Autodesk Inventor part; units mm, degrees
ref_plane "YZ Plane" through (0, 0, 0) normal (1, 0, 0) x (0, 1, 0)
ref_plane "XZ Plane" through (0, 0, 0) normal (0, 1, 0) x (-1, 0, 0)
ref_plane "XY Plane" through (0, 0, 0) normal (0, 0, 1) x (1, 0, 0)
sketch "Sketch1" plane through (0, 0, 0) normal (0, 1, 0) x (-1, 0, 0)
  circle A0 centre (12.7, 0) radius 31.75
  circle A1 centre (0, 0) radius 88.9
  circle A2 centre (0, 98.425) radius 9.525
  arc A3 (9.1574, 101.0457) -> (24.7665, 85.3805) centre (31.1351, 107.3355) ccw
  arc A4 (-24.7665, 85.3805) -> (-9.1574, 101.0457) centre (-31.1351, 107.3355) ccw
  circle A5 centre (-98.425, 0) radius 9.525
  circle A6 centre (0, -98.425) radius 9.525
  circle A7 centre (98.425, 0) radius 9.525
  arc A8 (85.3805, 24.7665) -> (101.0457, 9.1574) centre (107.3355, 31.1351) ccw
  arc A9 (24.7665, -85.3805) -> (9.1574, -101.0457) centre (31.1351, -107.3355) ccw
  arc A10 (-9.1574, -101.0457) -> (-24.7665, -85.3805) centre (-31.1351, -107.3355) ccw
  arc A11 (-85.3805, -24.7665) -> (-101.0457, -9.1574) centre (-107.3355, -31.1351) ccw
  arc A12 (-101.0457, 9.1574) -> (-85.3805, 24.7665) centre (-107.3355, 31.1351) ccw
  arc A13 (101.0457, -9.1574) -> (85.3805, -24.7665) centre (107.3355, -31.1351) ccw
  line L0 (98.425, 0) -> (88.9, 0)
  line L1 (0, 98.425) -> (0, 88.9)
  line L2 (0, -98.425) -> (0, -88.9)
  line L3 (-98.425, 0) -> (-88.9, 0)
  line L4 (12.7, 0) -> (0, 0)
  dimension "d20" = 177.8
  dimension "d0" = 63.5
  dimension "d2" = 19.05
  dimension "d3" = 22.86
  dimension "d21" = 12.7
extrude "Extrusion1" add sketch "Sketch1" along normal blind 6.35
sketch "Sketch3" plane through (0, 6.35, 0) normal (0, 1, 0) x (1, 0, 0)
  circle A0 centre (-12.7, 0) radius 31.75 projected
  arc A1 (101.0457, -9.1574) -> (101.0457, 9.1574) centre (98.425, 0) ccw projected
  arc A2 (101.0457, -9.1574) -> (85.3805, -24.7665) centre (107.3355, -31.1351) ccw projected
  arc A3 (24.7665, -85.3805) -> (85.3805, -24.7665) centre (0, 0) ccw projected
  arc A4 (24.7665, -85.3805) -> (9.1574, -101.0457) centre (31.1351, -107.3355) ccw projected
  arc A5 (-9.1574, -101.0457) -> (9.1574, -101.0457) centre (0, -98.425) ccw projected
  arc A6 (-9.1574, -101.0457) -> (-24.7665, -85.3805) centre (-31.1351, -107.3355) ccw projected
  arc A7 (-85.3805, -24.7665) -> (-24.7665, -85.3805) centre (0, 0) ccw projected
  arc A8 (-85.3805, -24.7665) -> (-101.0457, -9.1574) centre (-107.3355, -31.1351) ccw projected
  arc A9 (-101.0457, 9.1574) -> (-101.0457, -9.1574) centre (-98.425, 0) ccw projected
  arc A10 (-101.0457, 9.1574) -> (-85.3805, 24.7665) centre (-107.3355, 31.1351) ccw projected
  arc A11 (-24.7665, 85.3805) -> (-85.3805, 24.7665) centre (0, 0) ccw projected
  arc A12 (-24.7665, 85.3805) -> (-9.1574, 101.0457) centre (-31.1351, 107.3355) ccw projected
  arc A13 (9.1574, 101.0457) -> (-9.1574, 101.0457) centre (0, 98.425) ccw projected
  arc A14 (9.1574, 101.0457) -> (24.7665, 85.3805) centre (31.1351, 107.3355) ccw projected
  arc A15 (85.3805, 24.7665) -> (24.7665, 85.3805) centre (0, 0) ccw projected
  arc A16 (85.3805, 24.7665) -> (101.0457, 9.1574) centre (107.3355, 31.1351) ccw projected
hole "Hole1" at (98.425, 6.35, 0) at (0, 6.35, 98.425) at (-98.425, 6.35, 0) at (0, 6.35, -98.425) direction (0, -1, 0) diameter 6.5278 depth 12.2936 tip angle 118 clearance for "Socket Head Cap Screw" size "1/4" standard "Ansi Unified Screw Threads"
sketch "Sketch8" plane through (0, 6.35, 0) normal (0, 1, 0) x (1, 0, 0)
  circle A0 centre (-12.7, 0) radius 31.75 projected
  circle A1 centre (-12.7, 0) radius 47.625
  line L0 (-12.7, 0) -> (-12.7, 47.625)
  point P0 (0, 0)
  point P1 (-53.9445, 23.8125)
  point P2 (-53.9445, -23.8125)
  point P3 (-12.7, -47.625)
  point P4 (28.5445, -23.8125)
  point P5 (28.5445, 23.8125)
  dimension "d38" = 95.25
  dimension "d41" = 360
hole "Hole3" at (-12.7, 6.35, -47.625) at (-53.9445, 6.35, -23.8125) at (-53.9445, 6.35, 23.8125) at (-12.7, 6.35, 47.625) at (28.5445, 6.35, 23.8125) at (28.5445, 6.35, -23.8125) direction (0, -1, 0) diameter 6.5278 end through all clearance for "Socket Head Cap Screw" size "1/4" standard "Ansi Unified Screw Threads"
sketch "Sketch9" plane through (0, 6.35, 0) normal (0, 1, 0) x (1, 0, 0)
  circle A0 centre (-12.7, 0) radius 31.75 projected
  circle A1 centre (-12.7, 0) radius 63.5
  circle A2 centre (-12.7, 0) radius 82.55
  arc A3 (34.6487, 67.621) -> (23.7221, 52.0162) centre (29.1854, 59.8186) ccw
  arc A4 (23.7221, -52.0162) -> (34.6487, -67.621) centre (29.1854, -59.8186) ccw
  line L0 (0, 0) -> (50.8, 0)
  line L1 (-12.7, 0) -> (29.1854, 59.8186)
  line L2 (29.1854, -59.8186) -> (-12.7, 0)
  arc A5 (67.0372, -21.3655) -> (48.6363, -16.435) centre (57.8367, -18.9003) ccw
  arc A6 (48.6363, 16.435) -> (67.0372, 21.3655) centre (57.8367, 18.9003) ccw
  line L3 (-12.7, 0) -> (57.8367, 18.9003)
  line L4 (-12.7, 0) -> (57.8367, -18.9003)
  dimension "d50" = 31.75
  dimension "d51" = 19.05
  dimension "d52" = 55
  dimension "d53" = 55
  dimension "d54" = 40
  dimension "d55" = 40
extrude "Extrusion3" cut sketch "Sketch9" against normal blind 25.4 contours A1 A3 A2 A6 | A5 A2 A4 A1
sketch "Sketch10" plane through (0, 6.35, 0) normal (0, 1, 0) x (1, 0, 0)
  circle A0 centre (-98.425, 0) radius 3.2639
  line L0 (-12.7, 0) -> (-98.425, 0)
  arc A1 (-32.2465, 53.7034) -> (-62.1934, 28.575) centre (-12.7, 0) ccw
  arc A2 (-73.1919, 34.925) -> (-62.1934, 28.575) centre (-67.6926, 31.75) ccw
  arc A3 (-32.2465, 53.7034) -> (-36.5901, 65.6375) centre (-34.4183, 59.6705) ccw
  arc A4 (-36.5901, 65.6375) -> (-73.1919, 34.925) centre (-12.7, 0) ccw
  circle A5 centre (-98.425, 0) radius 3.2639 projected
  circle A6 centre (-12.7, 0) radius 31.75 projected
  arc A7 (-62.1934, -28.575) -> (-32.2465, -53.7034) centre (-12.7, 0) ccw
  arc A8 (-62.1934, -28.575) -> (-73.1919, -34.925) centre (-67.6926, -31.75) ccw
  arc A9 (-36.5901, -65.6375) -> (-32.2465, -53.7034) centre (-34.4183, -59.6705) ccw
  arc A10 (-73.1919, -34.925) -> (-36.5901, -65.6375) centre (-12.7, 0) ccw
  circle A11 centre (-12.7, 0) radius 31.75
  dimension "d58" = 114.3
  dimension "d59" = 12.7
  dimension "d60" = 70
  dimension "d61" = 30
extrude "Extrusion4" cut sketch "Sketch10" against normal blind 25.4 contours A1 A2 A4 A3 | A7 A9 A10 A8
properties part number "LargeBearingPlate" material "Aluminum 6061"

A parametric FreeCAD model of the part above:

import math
import FreeCAD as App
import Part
import Sketcher
Q = App.Units.Quantity

doc = App.newDocument("Part")
body = doc.addObject("PartDesign::Body", "Body")

sketch1 = body.newObject("Sketcher::SketchObject", "Sketch")
sketch1.AttachmentSupport = (doc.getObject("XZ_Plane"), [""])
sketch1.MapMode = "FlatFace"
sketch1.addGeometry([
    Part.ArcOfCircle(Part.Circle(App.Vector(0, 0, 0), App.Vector(0, 0, 1), 89), math.radians(-164), math.radians(-106)),
    Part.ArcOfCircle(Part.Circle(App.Vector(-107, -31, 0), App.Vector(0, 0, 1), 23), math.radians(16), math.radians(74)),
    Part.ArcOfCircle(Part.Circle(App.Vector(-98, 0, 0), App.Vector(0, 0, 1), 10), math.radians(106), math.radians(254)),
    Part.ArcOfCircle(Part.Circle(App.Vector(-107, 31, 0), App.Vector(0, 0, 1), 23), math.radians(-74), math.radians(-16)),
    Part.ArcOfCircle(Part.Circle(App.Vector(0, 0, 0), App.Vector(0, 0, 1), 89), math.radians(106), math.radians(164)),
    Part.ArcOfCircle(Part.Circle(App.Vector(-31, 107, 0), App.Vector(0, 0, 1), 23), math.radians(-74), math.radians(-16)),
    Part.ArcOfCircle(Part.Circle(App.Vector(0, 98, 0), App.Vector(0, 0, 1), 10), math.radians(16), math.radians(164)),
    Part.ArcOfCircle(Part.Circle(App.Vector(31, 107, 0), App.Vector(0, 0, 1), 23), math.radians(-164), math.radians(-106)),
    Part.ArcOfCircle(Part.Circle(App.Vector(0, 0, 0), App.Vector(0, 0, 1), 89), math.radians(16), math.radians(74)),
    Part.ArcOfCircle(Part.Circle(App.Vector(107, 31, 0), App.Vector(0, 0, 1), 23), math.radians(-164), math.radians(-106)),
    Part.ArcOfCircle(Part.Circle(App.Vector(98, 0, 0), App.Vector(0, 0, 1), 10), math.radians(-74), math.radians(74)),
    Part.ArcOfCircle(Part.Circle(App.Vector(107, -31, 0), App.Vector(0, 0, 1), 23), math.radians(106), math.radians(164)),
    Part.ArcOfCircle(Part.Circle(App.Vector(0, 0, 0), App.Vector(0, 0, 1), 89), math.radians(-74), math.radians(-16)),
    Part.ArcOfCircle(Part.Circle(App.Vector(31, -107, 0), App.Vector(0, 0, 1), 23), math.radians(106), math.radians(164)),
    Part.ArcOfCircle(Part.Circle(App.Vector(0, -98, 0), App.Vector(0, 0, 1), 10), math.radians(-164), math.radians(-16)),
    Part.ArcOfCircle(Part.Circle(App.Vector(-31, -107, 0), App.Vector(0, 0, 1), 23), math.radians(16), math.radians(74)),
    Part.Circle(App.Vector(-13, 0, 0), App.Vector(0, 0, 1), 32),
], False)
sketch1.addConstraint([
    Sketcher.Constraint("Tangent", 0, 1, 1, 1),
    Sketcher.Constraint("Tangent", 1, 2, 2, 2),
    Sketcher.Constraint("Tangent", 2, 1, 3, 1),
    Sketcher.Constraint("Tangent", 3, 2, 4, 2),
    Sketcher.Constraint("Tangent", 4, 1, 5, 1),
    Sketcher.Constraint("Tangent", 5, 2, 6, 2),
    Sketcher.Constraint("Tangent", 6, 1, 7, 1),
    Sketcher.Constraint("Tangent", 7, 2, 8, 2),
    Sketcher.Constraint("Tangent", 8, 1, 9, 1),
    Sketcher.Constraint("Tangent", 9, 2, 10, 2),
    Sketcher.Constraint("Tangent", 10, 1, 11, 1),
    Sketcher.Constraint("Tangent", 11, 2, 12, 2),
    Sketcher.Constraint("Tangent", 12, 1, 13, 1),
    Sketcher.Constraint("Tangent", 13, 2, 14, 2),
    Sketcher.Constraint("Tangent", 14, 1, 15, 1),
    Sketcher.Constraint("Tangent", 15, 2, 0, 2),
    Sketcher.Constraint("Coincident", 0, 3, -1, 1),
    Sketcher.Constraint("Coincident", 4, 3, -1, 1),
    Sketcher.Constraint("Coincident", 8, 3, -1, 1),
    Sketcher.Constraint("Coincident", 12, 3, -1, 1),
    Sketcher.Constraint("Equal", 1, 3),
    Sketcher.Constraint("Equal", 0, 4),
    Sketcher.Constraint("Equal", 3, 5),
    Sketcher.Constraint("Equal", 2, 6),
    Sketcher.Constraint("Equal", 5, 7),
    Sketcher.Constraint("Equal", 4, 8),
    Sketcher.Constraint("Equal", 7, 9),
    Sketcher.Constraint("Equal", 6, 10),
    Sketcher.Constraint("Equal", 9, 11),
    Sketcher.Constraint("Equal", 8, 12),
    Sketcher.Constraint("Equal", 11, 13),
    Sketcher.Constraint("Equal", 10, 14),
    Sketcher.Constraint("Equal", 13, 15),
    Sketcher.Constraint("Symmetric", 2, 3, 10, 3, -1, 1),
    Sketcher.Constraint("Symmetric", 6, 3, 14, 3, -1, 1),
    Sketcher.Constraint("PointOnObject", 2, 3, -1),
    Sketcher.Constraint("PointOnObject", 6, 3, -2),
    Sketcher.Constraint("PointOnObject", 16, 3, -1),
    Sketcher.Constraint("Diameter", 16, Q("2.5 in")),
    Sketcher.Constraint("Radius", 0, Q("3.5 in")),
    Sketcher.Constraint("Radius", 1, Q("0.9 in")),
    Sketcher.Constraint("Radius", 2, Q("0.375 in")),
    Sketcher.Constraint("DistanceX", 16, 3, -1, 1, Q("0.5 in")),
    Sketcher.Constraint("DistanceX", 2, 3, -1, 1, Q("3.875 in")),
    Sketcher.Constraint("DistanceY", -1, 1, 6, 3, Q("3.875 in")),
])
pad1 = body.newObject("PartDesign::Pad", "Pad")
pad1.Profile = sketch1
pad1.Length = Q("0.25 in")
pad1.Reversed = True

sketch2 = body.newObject("Sketcher::SketchObject", "Sketch001")
sketch2.AttachmentSupport = (doc.getObject("XZ_Plane"), [""])
sketch2.MapMode = "FlatFace"
sketch2.AttachmentOffset = App.Placement(App.Vector(0, 0, -0.25 * 25.4), App.Rotation())
sketch2.addGeometry([
    Part.Circle(App.Vector(98.4, 0, 0), App.Vector(0, 0, 1), 3.3),
    Part.Circle(App.Vector(0, 98.4, 0), App.Vector(0, 0, 1), 3.3),
    Part.Circle(App.Vector(-98.4, 0, 0), App.Vector(0, 0, 1), 3.3),
    Part.Circle(App.Vector(0, -98.4, 0), App.Vector(0, 0, 1), 3.3),
], False)
sketch2.addConstraint([
    Sketcher.Constraint("Equal", 0, 1),
    Sketcher.Constraint("Equal", 1, 2),
    Sketcher.Constraint("Equal", 2, 3),
    Sketcher.Constraint("Symmetric", 0, 3, 2, 3, -1, 1),
    Sketcher.Constraint("Symmetric", 1, 3, 3, 3, -1, 1),
    Sketcher.Constraint("PointOnObject", 0, 3, -1),
    Sketcher.Constraint("PointOnObject", 1, 3, -2),
    Sketcher.Constraint("Diameter", 0, Q("0.257 in")),
    Sketcher.Constraint("DistanceX", 2, 3, 0, 3, Q("7.75 in")),
    Sketcher.Constraint("DistanceY", 3, 3, 1, 3, Q("7.75 in")),
])
doc.recompute()
hole = body.newObject("PartDesign::Hole", "Hole")
hole.Profile = sketch2
hole.ThreadType = "None"
hole.Diameter = Q("0.257 in")
hole.DepthType = "Dimension"
hole.Depth = Q("0.484 in")
hole.DrillPoint = "Angled"
hole.DrillPointAngle = 118
hole.Reversed = True

sketch3 = body.newObject("Sketcher::SketchObject", "Sketch002")
sketch3.AttachmentSupport = (doc.getObject("XZ_Plane"), [""])
sketch3.MapMode = "FlatFace"
sketch3.AttachmentOffset = App.Placement(App.Vector(0, 0, -0.25 * 25.4), App.Rotation())
sketch3.addGeometry([
    Part.Circle(App.Vector(-12.7, -47.6, 0), App.Vector(0, 0, 1), 3.3),
    Part.Circle(App.Vector(-53.9, -23.8, 0), App.Vector(0, 0, 1), 3.3),
    Part.Circle(App.Vector(-53.9, 23.8, 0), App.Vector(0, 0, 1), 3.3),
    Part.Circle(App.Vector(-12.7, 47.6, 0), App.Vector(0, 0, 1), 3.3),
    Part.Circle(App.Vector(28.5, 23.8, 0), App.Vector(0, 0, 1), 3.3),
    Part.Circle(App.Vector(28.5, -23.8, 0), App.Vector(0, 0, 1), 3.3),
], False)
sketch3.addConstraint([
    Sketcher.Constraint("Equal", 0, 1),
    Sketcher.Constraint("Equal", 1, 2),
    Sketcher.Constraint("Equal", 2, 3),
    Sketcher.Constraint("Equal", 3, 4),
    Sketcher.Constraint("Equal", 4, 5),
    Sketcher.Constraint("Symmetric", 1, 3, 2, 3, -1),
    Sketcher.Constraint("Symmetric", 0, 3, 3, 3, -1),
    Sketcher.Constraint("Symmetric", 4, 3, 5, 3, -1),
    Sketcher.Constraint("Horizontal", 2, 3, 4, 3),
    Sketcher.Constraint("Diameter", 0, Q("0.257 in")),
    Sketcher.Constraint("DistanceX", 0, 3, -1, 1, Q("0.5 in")),
    Sketcher.Constraint("DistanceY", 0, 3, 3, 3, Q("3.75 in")),
    Sketcher.Constraint("DistanceY", 1, 3, -1, 1, Q("0.9375 in")),
    Sketcher.Constraint("DistanceX", 1, 3, -1, 1, Q("2.1238 in")),
    Sketcher.Constraint("DistanceX", -1, 1, 4, 3, Q("1.1238 in")),
])
doc.recompute()
hole2 = body.newObject("PartDesign::Hole", "Hole001")
hole2.Profile = sketch3
hole2.ThreadType = "None"
hole2.Diameter = Q("0.257 in")
hole2.DepthType = "ThroughAll"
hole2.Reversed = True

sketch4 = body.newObject("Sketcher::SketchObject", "Sketch003")
sketch4.AttachmentSupport = (doc.getObject("XZ_Plane"), [""])
sketch4.MapMode = "FlatFace"
sketch4.AttachmentOffset = App.Placement(App.Vector(0, 0, -0.25 * 25.4), App.Rotation())
sketch4.addGeometry([
    Part.ArcOfCircle(Part.Circle(App.Vector(-13, 0, 0), App.Vector(0, 0, 1), 64), math.radians(-55), math.radians(-15)),
    Part.ArcOfCircle(Part.Circle(App.Vector(58, -19, 0), App.Vector(0, 0, 1), 10), math.radians(-15), math.radians(165)),
    Part.ArcOfCircle(Part.Circle(App.Vector(-13, 0, 0), App.Vector(0, 0, 1), 83), math.radians(-55), math.radians(-15)),
    Part.ArcOfCircle(Part.Circle(App.Vector(29, -60, 0), App.Vector(0, 0, 1), 10), math.radians(125), math.radians(305)),
    Part.ArcOfCircle(Part.Circle(App.Vector(58, 19, 0), App.Vector(0, 0, 1), 10), math.radians(-165), math.radians(15)),
    Part.ArcOfCircle(Part.Circle(App.Vector(-13, 0, 0), App.Vector(0, 0, 1), 64), math.radians(15), math.radians(55)),
    Part.ArcOfCircle(Part.Circle(App.Vector(29, 60, 0), App.Vector(0, 0, 1), 10), math.radians(55), math.radians(235)),
    Part.ArcOfCircle(Part.Circle(App.Vector(-13, 0, 0), App.Vector(0, 0, 1), 83), math.radians(15), math.radians(55)),
], False)
sketch4.addConstraint([
    Sketcher.Constraint("Tangent", 0, 2, 1, 2),
    Sketcher.Constraint("Tangent", 1, 1, 2, 2),
    Sketcher.Constraint("Tangent", 2, 1, 3, 2),
    Sketcher.Constraint("Tangent", 3, 1, 0, 1),
    Sketcher.Constraint("Tangent", 4, 1, 5, 1),
    Sketcher.Constraint("Tangent", 5, 2, 6, 2),
    Sketcher.Constraint("Tangent", 6, 1, 7, 2),
    Sketcher.Constraint("Tangent", 7, 1, 4, 2),
    Sketcher.Constraint("Coincident", 2, 3, 0, 3),
    Sketcher.Constraint("Coincident", 5, 3, 0, 3),
    Sketcher.Constraint("Coincident", 7, 3, 0, 3),
    Sketcher.Constraint("Equal", 3, 4),
    Sketcher.Constraint("Equal", 0, 5),
    Sketcher.Constraint("Symmetric", 1, 3, 4, 3, -1),
    Sketcher.Constraint("Vertical", 3, 3, 6, 3),
    Sketcher.Constraint("Radius", 1, Q("0.375 in")),
    Sketcher.Constraint("Radius", 0, Q("2.5 in")),
    Sketcher.Constraint("DistanceX", 0, 3, -1, 1, Q("0.5 in")),
    Sketcher.Constraint("DistanceX", 3, 3, 1, 3, Q("1.128 in")),
    Sketcher.Constraint("DistanceY", 1, 3, -1, 1, Q("0.7441 in")),
])
pocket1 = body.newObject("PartDesign::Pocket", "Pocket")
pocket1.Profile = sketch4
pocket1.Length = Q("1 in")
pocket1.Reversed = True

sketch5 = body.newObject("Sketcher::SketchObject", "Sketch004")
sketch5.AttachmentSupport = (doc.getObject("XZ_Plane"), [""])
sketch5.MapMode = "FlatFace"
sketch5.AttachmentOffset = App.Placement(App.Vector(0, 0, -0.25 * 25.4), App.Rotation())
sketch5.addGeometry([
    Part.ArcOfCircle(Part.Circle(App.Vector(-13, 0, 0), App.Vector(0, 0, 1), 57), math.radians(-150), math.radians(-110)),
    Part.ArcOfCircle(Part.Circle(App.Vector(-34, -60, 0), App.Vector(0, 0, 1), 6), math.radians(-110), math.radians(70)),
    Part.ArcOfCircle(Part.Circle(App.Vector(-13, 0, 0), App.Vector(0, 0, 1), 70), math.radians(-150), math.radians(-110)),
    Part.ArcOfCircle(Part.Circle(App.Vector(-68, -32, 0), App.Vector(0, 0, 1), 6), math.radians(30), math.radians(210)),
    Part.ArcOfCircle(Part.Circle(App.Vector(-13, 0, 0), App.Vector(0, 0, 1), 57), math.radians(110), math.radians(150)),
    Part.ArcOfCircle(Part.Circle(App.Vector(-68, 32, 0), App.Vector(0, 0, 1), 6), math.radians(150), math.radians(330)),
    Part.ArcOfCircle(Part.Circle(App.Vector(-13, 0, 0), App.Vector(0, 0, 1), 70), math.radians(110), math.radians(150)),
    Part.ArcOfCircle(Part.Circle(App.Vector(-34, 60, 0), App.Vector(0, 0, 1), 6), math.radians(-70), math.radians(110)),
], False)
sketch5.addConstraint([
    Sketcher.Constraint("Tangent", 0, 2, 1, 2),
    Sketcher.Constraint("Tangent", 1, 1, 2, 2),
    Sketcher.Constraint("Tangent", 2, 1, 3, 2),
    Sketcher.Constraint("Tangent", 3, 1, 0, 1),
    Sketcher.Constraint("Tangent", 4, 2, 5, 2),
    Sketcher.Constraint("Tangent", 5, 1, 6, 2),
    Sketcher.Constraint("Tangent", 6, 1, 7, 2),
    Sketcher.Constraint("Tangent", 7, 1, 4, 1),
    Sketcher.Constraint("Coincident", 2, 3, 0, 3),
    Sketcher.Constraint("Coincident", 4, 3, 0, 3),
    Sketcher.Constraint("Coincident", 6, 3, 0, 3),
    Sketcher.Constraint("Equal", 0, 4),
    Sketcher.Constraint("Equal", 3, 5),
    Sketcher.Constraint("Symmetric", 3, 3, 5, 3, -1),
    Sketcher.Constraint("Vertical", 1, 3, 7, 3),
    Sketcher.Constraint("Radius", 0, Q("2.25 in")),
    Sketcher.Constraint("Radius", 1, Q("0.25 in")),
    Sketcher.Constraint("DistanceX", 0, 3, -1, 1, Q("0.5 in")),
    Sketcher.Constraint("DistanceY", 3, 3, 5, 3, Q("2.5 in")),
    Sketcher.Constraint("DistanceX", 3, 3, 1, 3, Q("1.31 in")),
])
pocket2 = body.newObject("PartDesign::Pocket", "Pocket001")
pocket2.Profile = sketch5
pocket2.Length = Q("1 in")
pocket2.Reversed = True

doc.recompute()
